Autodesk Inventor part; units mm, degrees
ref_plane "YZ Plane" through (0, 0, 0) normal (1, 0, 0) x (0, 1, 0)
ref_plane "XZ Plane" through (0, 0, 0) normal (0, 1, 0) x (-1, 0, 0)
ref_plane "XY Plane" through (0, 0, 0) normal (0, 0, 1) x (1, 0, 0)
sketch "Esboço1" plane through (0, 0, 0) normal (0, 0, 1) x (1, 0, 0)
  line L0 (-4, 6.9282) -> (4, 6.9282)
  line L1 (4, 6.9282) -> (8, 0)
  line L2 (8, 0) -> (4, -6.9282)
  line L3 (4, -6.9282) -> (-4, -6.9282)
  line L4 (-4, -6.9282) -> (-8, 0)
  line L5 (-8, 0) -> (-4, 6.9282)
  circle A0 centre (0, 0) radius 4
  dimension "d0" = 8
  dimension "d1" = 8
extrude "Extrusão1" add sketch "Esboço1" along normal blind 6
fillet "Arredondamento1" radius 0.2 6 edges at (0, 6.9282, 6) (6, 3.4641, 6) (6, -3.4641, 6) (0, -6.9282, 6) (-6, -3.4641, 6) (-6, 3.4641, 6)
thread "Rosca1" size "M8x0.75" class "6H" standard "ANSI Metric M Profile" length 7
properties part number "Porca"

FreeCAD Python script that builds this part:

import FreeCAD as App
import Part
import Sketcher


def edges_at(feature, points):
    """Names of the edges that pass closest to the given points."""
    edges = feature.Shape.Edges
    near = lambda p: min(range(len(edges)), key=lambda i: edges[i].distToShape(Part.Vertex(*p))[0])
    return sorted({f"Edge{near(p) + 1}" for p in points})


def add_polygon(sketch, points):
    """Adds a closed chain of lines whose ends are joined by coincident constraints."""
    first, n = sketch.GeometryCount, len(points)
    for a, b in zip(points, points[1:] + points[:1]):
        sketch.addGeometry(Part.LineSegment(App.Vector(*a, 0), App.Vector(*b, 0)), False)
    for i in range(n):
        sketch.addConstraint(Sketcher.Constraint("Coincident", first + i, 2, first + (i + 1) % n, 1))

doc = App.newDocument("Part")
body = doc.addObject("PartDesign::Body", "Body")

# Sketch on XY plane
sketch1 = body.newObject("Sketcher::SketchObject", "Sketch")
sketch1.AttachmentSupport = (doc.getObject("XY_Plane"), [""])
sketch1.MapMode = "FlatFace"
add_polygon(sketch1, [(4, 6.9282), (-4, 6.9282), (-8, 0), (-4, -6.9282), (4, -6.9282), (8, 0)])  # lines 0-5
sketch1.addGeometry(Part.Circle(App.Vector(0, 0, 0), App.Vector(0, 0, 1), 4), False)  # 6
sketch1.addConstraint([
    Sketcher.Constraint("Horizontal", 0),
    Sketcher.Constraint("Horizontal", 3),
    Sketcher.Constraint("Coincident", 6, 3, -1, 1),
    Sketcher.Constraint("Symmetric", 0, 2, 3, 2, -1, 1),
    Sketcher.Constraint("Symmetric", 1, 2, 4, 2, -1, 1),
    Sketcher.Constraint("PointOnObject", 1, 2, -1),
    Sketcher.Constraint("Parallel", 2, 5),
    Sketcher.Constraint("Vertical", 0, 2, 2, 2),
    Sketcher.Constraint("Diameter", 6, 8.0),
    Sketcher.Constraint("DistanceX", 0, 2, 0, 1, 8.0),
    Sketcher.Constraint("Distance", 1, 8.0),
    Sketcher.Constraint("DistanceX", 1, 2, -1, 1, 8.0),
])
pad1 = body.newObject("PartDesign::Pad", "Pad")
pad1.Profile = sketch1
pad1.Length = 6
doc.recompute()

fillet = body.newObject("PartDesign::Fillet", "Fillet")
fillet.Base = (pad1, edges_at(pad1, [
    (0, 6.928, 6),
    (6, 3.464, 6),
    (6, -3.464, 6),
    (0, -6.928, 6),
    (-6, -3.464, 6),
    (-6, 3.464, 6),
]))
fillet.Radius = 0.2

doc.recompute()
